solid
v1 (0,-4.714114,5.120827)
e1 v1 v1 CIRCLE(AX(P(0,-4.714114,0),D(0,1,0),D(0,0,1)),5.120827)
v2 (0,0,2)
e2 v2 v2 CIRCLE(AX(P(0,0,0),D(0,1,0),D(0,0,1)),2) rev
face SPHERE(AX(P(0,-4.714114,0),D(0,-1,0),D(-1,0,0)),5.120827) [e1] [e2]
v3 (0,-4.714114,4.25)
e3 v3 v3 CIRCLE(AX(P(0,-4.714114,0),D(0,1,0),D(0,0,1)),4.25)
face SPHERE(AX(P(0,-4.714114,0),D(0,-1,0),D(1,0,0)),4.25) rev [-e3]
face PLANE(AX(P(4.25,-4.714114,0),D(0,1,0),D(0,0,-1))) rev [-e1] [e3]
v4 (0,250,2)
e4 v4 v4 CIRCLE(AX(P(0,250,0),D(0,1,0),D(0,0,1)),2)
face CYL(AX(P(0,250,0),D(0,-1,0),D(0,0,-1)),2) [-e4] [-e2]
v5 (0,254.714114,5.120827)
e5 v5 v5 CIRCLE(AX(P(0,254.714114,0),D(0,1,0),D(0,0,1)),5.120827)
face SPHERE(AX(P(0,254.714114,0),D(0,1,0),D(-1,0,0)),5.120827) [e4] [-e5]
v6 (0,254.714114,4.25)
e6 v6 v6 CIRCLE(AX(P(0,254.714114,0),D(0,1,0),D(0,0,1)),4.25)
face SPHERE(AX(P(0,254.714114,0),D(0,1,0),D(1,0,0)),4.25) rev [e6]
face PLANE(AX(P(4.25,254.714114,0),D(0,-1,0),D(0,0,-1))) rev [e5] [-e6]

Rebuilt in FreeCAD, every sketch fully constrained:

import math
import FreeCAD as App
import Part
import Sketcher
from FreeCAD import Vector
Q = App.Units.Quantity

doc = App.newDocument("Part")
params = doc.addObject("Spreadsheet::Sheet", "Params")
for row, (alias, value) in enumerate([
    ("sketch1_diameter", "4 mm"),
    ("pad1_length", "250 mm"),
    ("sketch2_radius", "4.25 mm"),
    ("revolution_angle", "360 deg"),
], start=1):
    params.set(f"A{row}", alias)
    params.set(f"B{row}", "=" + value)
    params.setAlias(f"B{row}", alias)

body = doc.addObject("PartDesign::Body", "Body")

sketch1 = body.newObject("Sketcher::SketchObject", "Sketch")
sketch1.AttachmentSupport = (doc.getObject("XZ_Plane"), [""])
sketch1.MapMode = "FlatFace"
sketch1.addGeometry(Part.Circle(Vector(0, 0, 0), Vector(0, 0, 1), 2), False)
sketch1.addConstraint([
    Sketcher.Constraint("Coincident", 0, 3, -1, 1),
    Sketcher.Constraint("Diameter", 0, Q("4 mm")),
])
sketch1.setExpression("Constraints[1]", "Params.sketch1_diameter")
pad1 = body.newObject("PartDesign::Pad", "Pad")
pad1.Profile = sketch1
pad1.setExpression("Length", "Params.pad1_length")
pad1.Reversed = True

sketch2 = body.newObject("Sketcher::SketchObject", "Sketch001")
sketch2.AttachmentSupport = (doc.getObject("XY_Plane"), [""])
sketch2.MapMode = "FlatFace"
sketch2.addGeometry([
    Part.LineSegment(Vector(5.1, 254.7, 0), Vector(4.2, 254.7, 0)),
    Part.ArcOfCircle(Part.Circle(Vector(0, 254.7, 0), Vector(0, 0, 1), 4.2), math.radians(-90), math.radians(0)),
    Part.LineSegment(Vector(0, 250.5, 0), Vector(0, 249.6, 0)),
    Part.ArcOfCircle(Part.Circle(Vector(0, 254.7, 0), Vector(0, 0, 1), 5.1), math.radians(-90), math.radians(0)),
], False)
sketch2.addConstraint([
    Sketcher.Constraint("Coincident", 0, 2, 1, 2),
    Sketcher.Constraint("Coincident", 1, 1, 2, 1),
    Sketcher.Constraint("Coincident", 2, 2, 3, 1),
    Sketcher.Constraint("Coincident", 3, 2, 0, 1),
    Sketcher.Constraint("Horizontal", 0),
    Sketcher.Constraint("Vertical", 2),
    Sketcher.Constraint("Coincident", 3, 3, 1, 3),
    Sketcher.Constraint("PointOnObject", 1, 3, -2),
    Sketcher.Constraint("PointOnObject", 1, 1, -2),
    Sketcher.Constraint("Horizontal", 3, 3, 0, 2),
    Sketcher.Constraint("Radius", 1, Q("4.25 mm")),
    Sketcher.Constraint("Radius", 3, Q("5.120827 mm")),
    Sketcher.Constraint("DistanceY", -1, 1, 1, 3, Q("254.714114 mm")),
])
sketch2.setExpression("Constraints[10]", "Params.sketch2_radius")
revolution = body.newObject("PartDesign::Revolution", "Revolution")
revolution.Profile = sketch2
revolution.ReferenceAxis = (sketch2, ["V_Axis"])
revolution.setExpression("Angle", "Params.revolution_angle")
doc.recompute()

datumplane = body.newObject("PartDesign::Plane", "DatumPlane")
datumplane.AttachmentSupport = (doc.getObject("XZ_Plane"), [""])
datumplane.MapMode = "FlatFace"
datumplane.AttachmentOffset = App.Placement(Vector(0, 0, -125), App.Rotation())
mirrored = body.newObject("PartDesign::Mirrored", "Mirrored")
mirrored.Originals = [revolution]
mirrored.MirrorPlane = (datumplane, [""])
body.Tip = mirrored

doc.recompute()
